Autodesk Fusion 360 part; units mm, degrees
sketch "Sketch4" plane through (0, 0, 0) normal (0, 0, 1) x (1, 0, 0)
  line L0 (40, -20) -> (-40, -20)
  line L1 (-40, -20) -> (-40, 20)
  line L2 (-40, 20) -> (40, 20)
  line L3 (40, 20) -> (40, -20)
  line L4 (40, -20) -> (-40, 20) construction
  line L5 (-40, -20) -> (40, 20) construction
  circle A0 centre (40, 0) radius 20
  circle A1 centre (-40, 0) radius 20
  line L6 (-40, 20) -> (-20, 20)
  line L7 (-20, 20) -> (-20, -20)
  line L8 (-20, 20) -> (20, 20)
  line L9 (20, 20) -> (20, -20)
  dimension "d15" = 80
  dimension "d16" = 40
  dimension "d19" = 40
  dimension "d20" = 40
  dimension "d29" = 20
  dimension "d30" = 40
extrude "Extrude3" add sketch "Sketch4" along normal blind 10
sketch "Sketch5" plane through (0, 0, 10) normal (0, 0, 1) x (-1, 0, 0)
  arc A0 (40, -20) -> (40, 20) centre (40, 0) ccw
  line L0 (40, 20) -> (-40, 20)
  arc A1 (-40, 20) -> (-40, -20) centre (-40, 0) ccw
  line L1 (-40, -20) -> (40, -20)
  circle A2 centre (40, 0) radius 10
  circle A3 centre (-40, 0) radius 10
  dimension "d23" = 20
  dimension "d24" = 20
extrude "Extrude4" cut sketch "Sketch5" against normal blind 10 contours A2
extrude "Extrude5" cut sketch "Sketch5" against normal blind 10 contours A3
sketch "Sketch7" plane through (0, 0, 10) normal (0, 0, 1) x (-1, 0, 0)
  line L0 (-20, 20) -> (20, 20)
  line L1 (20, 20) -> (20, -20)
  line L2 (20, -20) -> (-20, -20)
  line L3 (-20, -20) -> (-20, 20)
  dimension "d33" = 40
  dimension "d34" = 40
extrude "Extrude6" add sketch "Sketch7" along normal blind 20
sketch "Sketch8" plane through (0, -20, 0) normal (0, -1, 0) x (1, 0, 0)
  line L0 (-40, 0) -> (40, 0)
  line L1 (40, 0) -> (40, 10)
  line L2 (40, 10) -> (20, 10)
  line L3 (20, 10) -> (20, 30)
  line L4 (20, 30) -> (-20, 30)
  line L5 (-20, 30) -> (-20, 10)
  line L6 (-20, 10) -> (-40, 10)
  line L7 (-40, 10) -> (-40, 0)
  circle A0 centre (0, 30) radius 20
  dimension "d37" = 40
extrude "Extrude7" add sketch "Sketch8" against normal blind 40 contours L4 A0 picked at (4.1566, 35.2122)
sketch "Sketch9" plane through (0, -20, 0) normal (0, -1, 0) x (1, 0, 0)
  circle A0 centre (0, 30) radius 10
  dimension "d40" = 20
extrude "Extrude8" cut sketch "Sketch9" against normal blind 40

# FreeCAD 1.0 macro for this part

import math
import FreeCAD as App
import Part
import Sketcher


def add_polygon(sketch, points):
    """Adds a closed chain of lines whose ends are joined by coincident constraints."""
    first, n = sketch.GeometryCount, len(points)
    for a, b in zip(points, points[1:] + points[:1]):
        sketch.addGeometry(Part.LineSegment(App.Vector(*a, 0), App.Vector(*b, 0)), False)
    for i in range(n):
        sketch.addConstraint(Sketcher.Constraint("Coincident", first + i, 2, first + (i + 1) % n, 1))

doc = App.newDocument("Part")
params = doc.addObject("Spreadsheet::Sheet", "Params")
for row, (alias, value) in enumerate([
    ("sketch1_radius", "20 mm"),
    ("sketch1_width", "80 mm"),
    ("pad1_length", "10 mm"),
    ("sketch2_diameter", "20 mm"),
    ("pocket1_length", "10 mm"),
    ("sketch3_diameter", "20 mm"),
    ("pocket2_length", "10 mm"),
    ("sketch4_width", "40 mm"),
    ("pad2_length", "20 mm"),
    ("sketch5_radius", "20 mm"),
    ("pad3_length", "40 mm"),
    ("sketch6_diameter", "20 mm"),
    ("pocket3_length", "40 mm"),
], start=1):
    params.set(f"A{row}", alias)
    params.set(f"B{row}", "=" + value)
    params.setAlias(f"B{row}", alias)

body = doc.addObject("PartDesign::Body", "Body")

# Sketch on XY plane
sketch1 = doc.addObject("Sketcher::SketchObject", "Sketch")
body.addObject(sketch1)
sketch1.AttachmentSupport = (doc.XY_Plane, [""])
sketch1.MapMode = "FlatFace"
sketch1.addGeometry([
    Part.ArcOfCircle(Part.Circle(App.Vector(40, 0, 0), App.Vector(0, 0, 1), 20), math.radians(-90), math.radians(90)),
    Part.LineSegment(App.Vector(40, 20, 0), App.Vector(-40, 20, 0)),
    Part.ArcOfCircle(Part.Circle(App.Vector(-40, 0, 0), App.Vector(0, 0, 1), 20), math.radians(90), math.radians(270)),
    Part.LineSegment(App.Vector(-40, -20, 0), App.Vector(40, -20, 0)),
], False)
sketch1.addConstraint([
    Sketcher.Constraint("Tangent", 0, 2, 1, 1),
    Sketcher.Constraint("Tangent", 1, 2, 2, 1),
    Sketcher.Constraint("Tangent", 2, 2, 3, 1),
    Sketcher.Constraint("Tangent", 3, 2, 0, 1),
    Sketcher.Constraint("Horizontal", 1),
    Sketcher.Constraint("Horizontal", 3),
    Sketcher.Constraint("Symmetric", 0, 3, 2, 3, -1, 1),
    Sketcher.Constraint("Radius", 0, 20.0),
    Sketcher.Constraint("DistanceX", 1, 2, 1, 1, 80.0),
])
sketch1.setExpression("Constraints[7]", "Params.sketch1_radius")
sketch1.setExpression("Constraints[8]", "Params.sketch1_width")
pad1 = doc.addObject("PartDesign::Pad", "Pad")
body.addObject(pad1)
pad1.Profile = sketch1
pad1.setExpression("Length", "Params.pad1_length")

# Sketch on XY plane
sketch2 = doc.addObject("Sketcher::SketchObject", "Sketch001")
body.addObject(sketch2)
sketch2.AttachmentSupport = (doc.XY_Plane, [""])
sketch2.MapMode = "FlatFace"
sketch2.AttachmentOffset = App.Placement(App.Vector(0, 0, 10), App.Rotation())
sketch2.addGeometry(Part.Circle(App.Vector(-40, 0, 0), App.Vector(0, 0, 1), 10), False)
sketch2.addConstraint([
    Sketcher.Constraint("PointOnObject", 0, 3, -1),
    Sketcher.Constraint("Diameter", 0, 20.0),
    Sketcher.Constraint("DistanceX", 0, 3, -1, 1, 40.0),
])
sketch2.setExpression("Constraints[1]", "Params.sketch2_diameter")
pocket1 = doc.addObject("PartDesign::Pocket", "Pocket")
body.addObject(pocket1)
pocket1.Profile = sketch2
pocket1.setExpression("Length", "Params.pocket1_length")

# Sketch on XY plane
sketch3 = doc.addObject("Sketcher::SketchObject", "Sketch002")
body.addObject(sketch3)
sketch3.AttachmentSupport = (doc.XY_Plane, [""])
sketch3.MapMode = "FlatFace"
sketch3.AttachmentOffset = App.Placement(App.Vector(0, 0, 10), App.Rotation())
sketch3.addGeometry(Part.Circle(App.Vector(40, 0, 0), App.Vector(0, 0, 1), 10), False)
sketch3.addConstraint([
    Sketcher.Constraint("PointOnObject", 0, 3, -1),
    Sketcher.Constraint("Diameter", 0, 20.0),
    Sketcher.Constraint("DistanceX", -1, 1, 0, 3, 40.0),
])
sketch3.setExpression("Constraints[1]", "Params.sketch3_diameter")
pocket2 = doc.addObject("PartDesign::Pocket", "Pocket001")
body.addObject(pocket2)
pocket2.Profile = sketch3
pocket2.setExpression("Length", "Params.pocket2_length")

# Sketch on XY plane
sketch4 = doc.addObject("Sketcher::SketchObject", "Sketch003")
body.addObject(sketch4)
sketch4.AttachmentSupport = (doc.XY_Plane, [""])
sketch4.MapMode = "FlatFace"
sketch4.AttachmentOffset = App.Placement(App.Vector(0, 0, 10), App.Rotation())
add_polygon(sketch4, [(-20, -20), (20, -20), (20, 20), (-20, 20)])  # lines 0-3
sketch4.addConstraint([
    Sketcher.Constraint("Horizontal", 0),
    Sketcher.Constraint("Vertical", 1),
    Sketcher.Constraint("Horizontal", 2),
    Sketcher.Constraint("Vertical", 3),
    Sketcher.Constraint("Symmetric", 0, 2, 2, 2, -1, 1),
    Sketcher.Constraint("Equal", 2, 1),
    Sketcher.Constraint("DistanceX", 0, 1, 0, 2, 40.0),
])
sketch4.setExpression("Constraints[10]", "Params.sketch4_width")
pad2 = doc.addObject("PartDesign::Pad", "Pad001")
body.addObject(pad2)
pad2.Profile = sketch4
pad2.setExpression("Length", "Params.pad2_length")

# Sketch on XZ plane
sketch5 = doc.addObject("Sketcher::SketchObject", "Sketch004")
body.addObject(sketch5)
sketch5.AttachmentSupport = (doc.XZ_Plane, [""])
sketch5.MapMode = "FlatFace"
sketch5.AttachmentOffset = App.Placement(App.Vector(0, 0, 20), App.Rotation())
sketch5.addGeometry([
    Part.ArcOfCircle(Part.Circle(App.Vector(0, 30, 0), App.Vector(0, 0, 1), 20), math.radians(0), math.radians(180)),
    Part.LineSegment(App.Vector(-20, 30, 0), App.Vector(20, 30, 0)),
], False)
sketch5.addConstraint([
    Sketcher.Constraint("Coincident", 0, 1, 1, 2),
    Sketcher.Constraint("Coincident", 1, 1, 0, 2),
    Sketcher.Constraint("Horizontal", 1),
    Sketcher.Constraint("PointOnObject", 0, 3, -2),
    Sketcher.Constraint("Radius", 0, 20.0),
    Sketcher.Constraint("DistanceY", -1, 1, 0, 3, 30.0),
    Sketcher.Constraint("DistanceY", -1, 1, 0, 1, 30.0),
])
sketch5.setExpression("Constraints[4]", "Params.sketch5_radius")
pad3 = doc.addObject("PartDesign::Pad", "Pad002")
body.addObject(pad3)
pad3.Profile = sketch5
pad3.setExpression("Length", "Params.pad3_length")
pad3.Reversed = True

# Sketch on XZ plane
sketch6 = doc.addObject("Sketcher::SketchObject", "Sketch005")
body.addObject(sketch6)
sketch6.AttachmentSupport = (doc.XZ_Plane, [""])
sketch6.MapMode = "FlatFace"
sketch6.AttachmentOffset = App.Placement(App.Vector(0, 0, 20), App.Rotation())
sketch6.addGeometry(Part.Circle(App.Vector(0, 30, 0), App.Vector(0, 0, 1), 10), False)
sketch6.addConstraint([
    Sketcher.Constraint("PointOnObject", 0, 3, -2),
    Sketcher.Constraint("Diameter", 0, 20.0),
    Sketcher.Constraint("DistanceY", -1, 1, 0, 3, 30.0),
])
sketch6.setExpression("Constraints[1]", "Params.sketch6_diameter")
pocket3 = doc.addObject("PartDesign::Pocket", "Pocket002")
body.addObject(pocket3)
pocket3.Profile = sketch6
pocket3.setExpression("Length", "Params.pocket3_length")

doc.recompute()
